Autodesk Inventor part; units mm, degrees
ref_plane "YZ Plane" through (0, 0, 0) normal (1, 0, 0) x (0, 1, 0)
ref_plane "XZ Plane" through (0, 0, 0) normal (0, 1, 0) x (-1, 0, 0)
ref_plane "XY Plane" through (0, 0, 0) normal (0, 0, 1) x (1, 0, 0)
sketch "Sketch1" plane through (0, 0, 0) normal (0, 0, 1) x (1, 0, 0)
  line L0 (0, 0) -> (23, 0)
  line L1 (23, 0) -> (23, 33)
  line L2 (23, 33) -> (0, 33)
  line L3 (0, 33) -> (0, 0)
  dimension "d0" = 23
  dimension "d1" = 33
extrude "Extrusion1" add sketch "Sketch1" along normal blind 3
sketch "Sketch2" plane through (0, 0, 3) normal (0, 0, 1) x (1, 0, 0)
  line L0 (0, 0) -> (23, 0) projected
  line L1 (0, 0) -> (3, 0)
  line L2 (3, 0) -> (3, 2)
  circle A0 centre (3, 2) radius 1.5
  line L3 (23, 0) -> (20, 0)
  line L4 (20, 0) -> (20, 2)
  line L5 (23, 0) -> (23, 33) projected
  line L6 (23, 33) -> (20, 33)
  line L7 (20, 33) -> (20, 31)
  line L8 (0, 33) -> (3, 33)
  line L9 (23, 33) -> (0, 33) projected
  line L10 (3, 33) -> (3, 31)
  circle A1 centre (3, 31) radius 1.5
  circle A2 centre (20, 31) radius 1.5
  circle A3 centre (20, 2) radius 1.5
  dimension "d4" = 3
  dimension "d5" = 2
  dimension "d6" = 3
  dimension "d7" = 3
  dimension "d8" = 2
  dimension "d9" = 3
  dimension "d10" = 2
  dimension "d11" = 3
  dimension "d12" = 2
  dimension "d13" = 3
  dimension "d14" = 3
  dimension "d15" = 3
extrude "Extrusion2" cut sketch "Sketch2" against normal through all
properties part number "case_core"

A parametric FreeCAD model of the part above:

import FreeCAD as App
import Part
import Sketcher

V = App.Vector
Q = App.Units.Quantity

doc = App.newDocument("Part")
params = doc.addObject("Spreadsheet::Sheet", "Params")
for row, (alias, value) in enumerate([
    ("sketch1_width", "23 mm"),
    ("sketch1_height", "33 mm"),
    ("pad1_length", "3 mm"),
    ("sketch2_diameter", "3 mm"),
], start=1):
    params.set(f"A{row}", alias)
    params.set(f"B{row}", "=" + value)
    params.setAlias(f"B{row}", alias)

body = doc.addObject("PartDesign::Body", "Body")

sketch1 = doc.addObject("Sketcher::SketchObject", "Sketch")
body.addObject(sketch1)
sketch1.AttachmentSupport = (doc.XY_Plane, [""])
sketch1.MapMode = "FlatFace"
sketch1.addGeometry(Part.LineSegment(V(0, 33, 0), V(0, 0, 0)), False)
sketch1.addGeometry(Part.LineSegment(V(0, 0, 0), V(23, 0, 0)), False)
sketch1.addGeometry(Part.LineSegment(V(23, 0, 0), V(23, 33, 0)), False)
sketch1.addGeometry(Part.LineSegment(V(23, 33, 0), V(0, 33, 0)), False)
sketch1.addConstraint(Sketcher.Constraint("Coincident", 0, 2, 1, 1))
sketch1.addConstraint(Sketcher.Constraint("Coincident", 1, 2, 2, 1))
sketch1.addConstraint(Sketcher.Constraint("Coincident", 2, 2, 3, 1))
sketch1.addConstraint(Sketcher.Constraint("Coincident", 3, 2, 0, 1))
sketch1.addConstraint(Sketcher.Constraint("Vertical", 0))
sketch1.addConstraint(Sketcher.Constraint("Horizontal", 1))
sketch1.addConstraint(Sketcher.Constraint("Vertical", 2))
sketch1.addConstraint(Sketcher.Constraint("Horizontal", 3))
sketch1.addConstraint(Sketcher.Constraint("Coincident", 0, 2, -1, 1))
sketch1.addConstraint(Sketcher.Constraint("DistanceX", 1, 1, 1, 2, Q("23 mm")))
sketch1.addConstraint(Sketcher.Constraint("DistanceY", 0, 2, 0, 1, Q("33 mm")))
sketch1.setExpression("Constraints[9]", "Params.sketch1_width")
sketch1.setExpression("Constraints[10]", "Params.sketch1_height")
pad1 = doc.addObject("PartDesign::Pad", "Pad")
body.addObject(pad1)
pad1.Profile = sketch1
pad1.setExpression("Length", "Params.pad1_length")

sketch2 = doc.addObject("Sketcher::SketchObject", "Sketch001")
body.addObject(sketch2)
sketch2.AttachmentSupport = (doc.XY_Plane, [""])
sketch2.MapMode = "FlatFace"
sketch2.AttachmentOffset = App.Placement(V(0, 0, 3), App.Rotation())
sketch2.addGeometry(Part.Circle(V(20, 2, 0), V(0, 0, 1), 1.5), False)
sketch2.addGeometry(Part.Circle(V(20, 31, 0), V(0, 0, 1), 1.5), False)
sketch2.addGeometry(Part.Circle(V(3, 31, 0), V(0, 0, 1), 1.5), False)
sketch2.addGeometry(Part.Circle(V(3, 2, 0), V(0, 0, 1), 1.5), False)
sketch2.addConstraint(Sketcher.Constraint("Equal", 0, 1))
sketch2.addConstraint(Sketcher.Constraint("Equal", 1, 2))
sketch2.addConstraint(Sketcher.Constraint("Equal", 2, 3))
sketch2.addConstraint(Sketcher.Constraint("Horizontal", 1, 3, 2, 3))
sketch2.addConstraint(Sketcher.Constraint("Horizontal", 0, 3, 3, 3))
sketch2.addConstraint(Sketcher.Constraint("Vertical", 0, 3, 1, 3))
sketch2.addConstraint(Sketcher.Constraint("Vertical", 2, 3, 3, 3))
sketch2.addConstraint(Sketcher.Constraint("Diameter", 0, Q("3 mm")))
sketch2.addConstraint(Sketcher.Constraint("DistanceY", -1, 1, 0, 3, Q("2 mm")))
sketch2.addConstraint(Sketcher.Constraint("DistanceX", -1, 1, 2, 3, Q("3 mm")))
sketch2.addConstraint(Sketcher.Constraint("DistanceX", -1, 1, 0, 3, Q("20 mm")))
sketch2.addConstraint(Sketcher.Constraint("DistanceY", -1, 1, 1, 3, Q("31 mm")))
sketch2.setExpression("Constraints[7]", "Params.sketch2_diameter")
pocket1 = doc.addObject("PartDesign::Pocket", "Pocket")
body.addObject(pocket1)
pocket1.Profile = sketch2
pocket1.Type = "ThroughAll"

doc.recompute()
